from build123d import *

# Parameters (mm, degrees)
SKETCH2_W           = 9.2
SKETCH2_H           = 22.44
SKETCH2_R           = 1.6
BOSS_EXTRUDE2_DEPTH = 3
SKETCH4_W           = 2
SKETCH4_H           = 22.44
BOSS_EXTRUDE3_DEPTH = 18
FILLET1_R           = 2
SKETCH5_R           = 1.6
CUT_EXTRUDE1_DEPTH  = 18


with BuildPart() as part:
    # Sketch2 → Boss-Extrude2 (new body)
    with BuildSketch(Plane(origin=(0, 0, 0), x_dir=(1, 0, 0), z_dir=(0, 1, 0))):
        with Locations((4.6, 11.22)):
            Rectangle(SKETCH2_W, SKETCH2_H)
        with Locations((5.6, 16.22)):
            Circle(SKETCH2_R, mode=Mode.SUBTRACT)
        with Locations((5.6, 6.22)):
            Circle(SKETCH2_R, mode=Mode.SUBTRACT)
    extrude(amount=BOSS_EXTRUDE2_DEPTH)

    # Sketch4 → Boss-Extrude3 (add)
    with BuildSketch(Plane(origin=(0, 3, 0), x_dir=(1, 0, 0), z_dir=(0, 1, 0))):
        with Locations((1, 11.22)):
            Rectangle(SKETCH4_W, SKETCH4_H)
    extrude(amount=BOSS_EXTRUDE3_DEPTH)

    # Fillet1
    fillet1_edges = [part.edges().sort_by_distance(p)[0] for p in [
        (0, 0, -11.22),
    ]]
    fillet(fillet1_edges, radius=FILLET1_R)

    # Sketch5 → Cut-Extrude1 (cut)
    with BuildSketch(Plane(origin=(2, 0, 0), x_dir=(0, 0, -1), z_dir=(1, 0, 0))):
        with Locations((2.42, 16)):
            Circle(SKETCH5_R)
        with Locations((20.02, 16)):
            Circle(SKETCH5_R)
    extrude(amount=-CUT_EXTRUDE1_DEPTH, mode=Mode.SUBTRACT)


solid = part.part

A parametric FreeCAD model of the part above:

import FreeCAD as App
import Part
import Sketcher

V = App.Vector


def edges_at(feature, points):
    """Names of the edges that pass closest to the given points."""
    edges = feature.Shape.Edges
    near = lambda p: min(range(len(edges)), key=lambda i: edges[i].distToShape(Part.Vertex(*p))[0])
    return sorted({f"Edge{near(p) + 1}" for p in points})

doc = App.newDocument("Part")
body = doc.addObject("PartDesign::Body", "Body")

# Sketch on XZ plane
sketch1 = body.newObject("Sketcher::SketchObject", "Sketch")
sketch1.AttachmentSupport = (doc.getObject("XZ_Plane"), [""])
sketch1.MapMode = "FlatFace"
sketch1.addGeometry(Part.LineSegment(V(0, -22.4, 0), V(0, 0, 0)), False)
sketch1.addGeometry(Part.LineSegment(V(0, 0, 0), V(9.2, 0, 0)), False)
sketch1.addGeometry(Part.LineSegment(V(9.2, 0, 0), V(9.2, -22.4, 0)), False)
sketch1.addGeometry(Part.LineSegment(V(9.2, -22.4, 0), V(0, -22.4, 0)), False)
sketch1.addGeometry(Part.Circle(V(5.6, -6.2, 0), V(0, 0, 1), 1.6), False)
sketch1.addGeometry(Part.Circle(V(5.6, -16.2, 0), V(0, 0, 1), 1.6), False)
sketch1.addConstraint(Sketcher.Constraint("Coincident", 0, 2, 1, 1))
sketch1.addConstraint(Sketcher.Constraint("Coincident", 1, 2, 2, 1))
sketch1.addConstraint(Sketcher.Constraint("Coincident", 2, 2, 3, 1))
sketch1.addConstraint(Sketcher.Constraint("Coincident", 3, 2, 0, 1))
sketch1.addConstraint(Sketcher.Constraint("Vertical", 0))
sketch1.addConstraint(Sketcher.Constraint("Horizontal", 1))
sketch1.addConstraint(Sketcher.Constraint("Vertical", 2))
sketch1.addConstraint(Sketcher.Constraint("Horizontal", 3))
sketch1.addConstraint(Sketcher.Constraint("Coincident", 0, 2, -1, 1))
sketch1.addConstraint(Sketcher.Constraint("Equal", 4, 5))
sketch1.addConstraint(Sketcher.Constraint("Vertical", 4, 3, 5, 3))
sketch1.addConstraint(Sketcher.Constraint("Diameter", 4, 3.2))
sketch1.addConstraint(Sketcher.Constraint("DistanceX", 1, 1, 1, 2, 9.2))
sketch1.addConstraint(Sketcher.Constraint("DistanceY", 5, 3, 4, 3, 10.0))
sketch1.addConstraint(Sketcher.Constraint("DistanceY", 0, 1, 0, 2, 22.44))
sketch1.addConstraint(Sketcher.Constraint("DistanceX", -1, 1, 4, 3, 5.6))
sketch1.addConstraint(Sketcher.Constraint("DistanceY", 4, 3, -1, 1, 6.22))
pad1 = body.newObject("PartDesign::Pad", "Pad")
pad1.Profile = sketch1
pad1.Length = 3
pad1.Reversed = True

# Sketch on XZ plane
sketch2 = body.newObject("Sketcher::SketchObject", "Sketch001")
sketch2.AttachmentSupport = (doc.getObject("XZ_Plane"), [""])
sketch2.MapMode = "FlatFace"
sketch2.AttachmentOffset = App.Placement(V(0, 0, -3), App.Rotation())
sketch2.addGeometry(Part.LineSegment(V(0, -22.4, 0), V(0, 0, 0)), False)
sketch2.addGeometry(Part.LineSegment(V(0, 0, 0), V(2, 0, 0)), False)
sketch2.addGeometry(Part.LineSegment(V(2, 0, 0), V(2, -22.4, 0)), False)
sketch2.addGeometry(Part.LineSegment(V(2, -22.4, 0), V(0, -22.4, 0)), False)
sketch2.addConstraint(Sketcher.Constraint("Coincident", 0, 2, 1, 1))
sketch2.addConstraint(Sketcher.Constraint("Coincident", 1, 2, 2, 1))
sketch2.addConstraint(Sketcher.Constraint("Coincident", 2, 2, 3, 1))
sketch2.addConstraint(Sketcher.Constraint("Coincident", 3, 2, 0, 1))
sketch2.addConstraint(Sketcher.Constraint("Vertical", 0))
sketch2.addConstraint(Sketcher.Constraint("Horizontal", 1))
sketch2.addConstraint(Sketcher.Constraint("Vertical", 2))
sketch2.addConstraint(Sketcher.Constraint("Horizontal", 3))
sketch2.addConstraint(Sketcher.Constraint("Coincident", 0, 2, -1, 1))
sketch2.addConstraint(Sketcher.Constraint("DistanceX", 1, 1, 1, 2, 2.0))
sketch2.addConstraint(Sketcher.Constraint("DistanceY", 0, 1, 0, 2, 22.44))
pad2 = body.newObject("PartDesign::Pad", "Pad001")
pad2.Profile = sketch2
pad2.Length = 18
pad2.Reversed = True
doc.recompute()

fillet = body.newObject("PartDesign::Fillet", "Fillet")
fillet.Base = (pad2, edges_at(pad2, [(0, 0, -11.22)]))
fillet.Radius = 2

# Sketch on YZ plane
sketch3 = body.newObject("Sketcher::SketchObject", "Sketch002")
sketch3.AttachmentSupport = (doc.getObject("YZ_Plane"), [""])
sketch3.MapMode = "FlatFace"
sketch3.AttachmentOffset = App.Placement(V(0, 0, 2), App.Rotation())
sketch3.addGeometry(Part.Circle(V(16, -2.4, 0), V(0, 0, 1), 1.6), False)
sketch3.addGeometry(Part.Circle(V(16, -20, 0), V(0, 0, 1), 1.6), False)
sketch3.addConstraint(Sketcher.Constraint("Equal", 0, 1))
sketch3.addConstraint(Sketcher.Constraint("Vertical", 0, 3, 1, 3))
sketch3.addConstraint(Sketcher.Constraint("Diameter", 0, 3.2))
sketch3.addConstraint(Sketcher.Constraint("DistanceX", -1, 1, 0, 3, 16.0))
sketch3.addConstraint(Sketcher.Constraint("DistanceY", 1, 3, 0, 3, 17.6))
sketch3.addConstraint(Sketcher.Constraint("DistanceY", 0, 3, -1, 1, 2.42))
pocket1 = body.newObject("PartDesign::Pocket", "Pocket")
pocket1.Profile = sketch3
pocket1.Length = 18

doc.recompute()
